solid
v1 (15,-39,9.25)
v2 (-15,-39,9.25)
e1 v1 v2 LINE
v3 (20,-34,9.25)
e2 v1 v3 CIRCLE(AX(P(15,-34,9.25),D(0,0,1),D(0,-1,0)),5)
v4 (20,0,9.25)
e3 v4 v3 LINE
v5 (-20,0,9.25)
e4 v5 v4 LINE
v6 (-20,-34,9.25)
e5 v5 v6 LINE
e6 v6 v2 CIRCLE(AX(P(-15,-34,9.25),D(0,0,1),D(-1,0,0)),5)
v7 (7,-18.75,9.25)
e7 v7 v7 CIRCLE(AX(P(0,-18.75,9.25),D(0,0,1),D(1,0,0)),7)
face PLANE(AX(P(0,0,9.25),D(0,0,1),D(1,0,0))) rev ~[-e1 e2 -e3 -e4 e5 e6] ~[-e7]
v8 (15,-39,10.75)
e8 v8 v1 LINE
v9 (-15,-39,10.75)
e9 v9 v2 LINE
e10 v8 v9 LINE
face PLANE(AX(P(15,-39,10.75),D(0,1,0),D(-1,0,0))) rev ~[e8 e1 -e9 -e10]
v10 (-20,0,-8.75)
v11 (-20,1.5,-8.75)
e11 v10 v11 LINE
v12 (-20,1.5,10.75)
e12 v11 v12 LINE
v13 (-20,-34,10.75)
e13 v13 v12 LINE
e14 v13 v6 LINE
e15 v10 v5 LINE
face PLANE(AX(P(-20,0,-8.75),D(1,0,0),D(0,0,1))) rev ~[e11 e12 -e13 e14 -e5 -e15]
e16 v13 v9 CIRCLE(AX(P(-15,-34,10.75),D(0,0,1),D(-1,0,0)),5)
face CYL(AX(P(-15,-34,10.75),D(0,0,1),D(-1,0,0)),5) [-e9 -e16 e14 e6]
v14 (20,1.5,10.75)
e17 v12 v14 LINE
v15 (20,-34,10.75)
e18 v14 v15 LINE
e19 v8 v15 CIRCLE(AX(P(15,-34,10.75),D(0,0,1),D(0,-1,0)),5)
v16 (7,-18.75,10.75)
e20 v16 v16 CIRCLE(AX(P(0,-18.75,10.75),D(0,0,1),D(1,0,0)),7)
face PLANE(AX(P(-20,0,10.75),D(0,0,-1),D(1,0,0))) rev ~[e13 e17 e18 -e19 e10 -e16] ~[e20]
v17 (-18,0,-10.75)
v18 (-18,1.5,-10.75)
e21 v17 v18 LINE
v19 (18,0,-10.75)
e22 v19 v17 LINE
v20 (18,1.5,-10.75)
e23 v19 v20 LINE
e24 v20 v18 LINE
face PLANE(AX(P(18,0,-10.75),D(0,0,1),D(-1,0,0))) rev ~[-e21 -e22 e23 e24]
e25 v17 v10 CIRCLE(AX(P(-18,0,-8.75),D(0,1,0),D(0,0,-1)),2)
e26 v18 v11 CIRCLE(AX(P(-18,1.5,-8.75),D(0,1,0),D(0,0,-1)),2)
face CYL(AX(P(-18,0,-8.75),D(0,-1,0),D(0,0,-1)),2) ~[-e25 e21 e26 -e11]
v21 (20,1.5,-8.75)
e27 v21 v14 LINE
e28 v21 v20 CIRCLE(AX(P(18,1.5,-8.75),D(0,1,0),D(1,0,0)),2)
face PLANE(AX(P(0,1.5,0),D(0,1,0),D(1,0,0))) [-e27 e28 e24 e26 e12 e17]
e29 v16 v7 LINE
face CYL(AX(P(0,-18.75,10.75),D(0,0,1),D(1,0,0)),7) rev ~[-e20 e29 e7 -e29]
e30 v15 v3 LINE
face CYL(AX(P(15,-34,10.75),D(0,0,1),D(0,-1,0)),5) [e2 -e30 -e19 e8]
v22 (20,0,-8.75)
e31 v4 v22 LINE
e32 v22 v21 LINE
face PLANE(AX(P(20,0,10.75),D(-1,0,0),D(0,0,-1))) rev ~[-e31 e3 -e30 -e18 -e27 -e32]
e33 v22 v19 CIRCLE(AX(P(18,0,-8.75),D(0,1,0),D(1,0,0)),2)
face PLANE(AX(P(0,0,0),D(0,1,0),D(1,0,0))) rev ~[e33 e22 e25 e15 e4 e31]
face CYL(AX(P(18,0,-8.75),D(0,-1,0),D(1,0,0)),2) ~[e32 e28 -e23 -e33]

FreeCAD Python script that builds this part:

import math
import FreeCAD as App
import Part
import Sketcher
Q = App.Units.Quantity

doc = App.newDocument("Part")
body = doc.addObject("PartDesign::Body", "Body")

sketch1 = body.newObject("Sketcher::SketchObject", "Sketch")
sketch1.AttachmentSupport = (doc.getObject("XZ_Plane"), [""])
sketch1.MapMode = "FlatFace"
sketch1.addGeometry([
    Part.ArcOfCircle(Part.Circle(App.Vector(18, -8.75, 0), App.Vector(0, 0, 1), 2), math.radians(-90), math.radians(0)),
    Part.LineSegment(App.Vector(18, -10.75, 0), App.Vector(-18, -10.75, 0)),
    Part.ArcOfCircle(Part.Circle(App.Vector(-18, -8.75, 0), App.Vector(0, 0, 1), 2), math.radians(180), math.radians(270)),
    Part.LineSegment(App.Vector(-20, -8.75, 0), App.Vector(-20, 10.75, 0)),
    Part.LineSegment(App.Vector(-20, 10.75, 0), App.Vector(20, 10.75, 0)),
    Part.LineSegment(App.Vector(20, 10.75, 0), App.Vector(20, -8.75, 0)),
], False)
sketch1.addConstraint([
    Sketcher.Constraint("Tangent", 0, 1, 1, 1),
    Sketcher.Constraint("Tangent", 1, 2, 2, 2),
    Sketcher.Constraint("Tangent", 2, 1, 3, 1),
    Sketcher.Constraint("Coincident", 3, 2, 4, 1),
    Sketcher.Constraint("Coincident", 4, 2, 5, 1),
    Sketcher.Constraint("Tangent", 5, 2, 0, 2),
    Sketcher.Constraint("Horizontal", 1),
    Sketcher.Constraint("Vertical", 3),
    Sketcher.Constraint("Horizontal", 4),
    Sketcher.Constraint("Vertical", 5),
    Sketcher.Constraint("Equal", 0, 2),
    Sketcher.Constraint("Radius", 0, Q("2 mm")),
    Sketcher.Constraint("DistanceX", 4, 1, 4, 2, Q("40 mm")),
    Sketcher.Constraint("DistanceY", 1, 2, 3, 2, Q("21.5 mm")),
    Sketcher.Constraint("DistanceX", -1, 1, 0, 3, Q("18 mm")),
    Sketcher.Constraint("DistanceY", 0, 3, -1, 1, Q("8.75 mm")),
])
pad1 = body.newObject("PartDesign::Pad", "Pad")
pad1.Profile = sketch1
pad1.Length = 1.5
pad1.Reversed = True

sketch2 = body.newObject("Sketcher::SketchObject", "Sketch001")
sketch2.AttachmentSupport = (doc.getObject("XY_Plane"), [""])
sketch2.MapMode = "FlatFace"
sketch2.AttachmentOffset = App.Placement(App.Vector(0, 0, 10.75), App.Rotation())
sketch2.addGeometry([
    Part.LineSegment(App.Vector(-20, 1.5, 0), App.Vector(-20, -34, 0)),
    Part.ArcOfCircle(Part.Circle(App.Vector(-15, -34, 0), App.Vector(0, 0, 1), 5), math.radians(180), math.radians(270)),
    Part.LineSegment(App.Vector(-15, -39, 0), App.Vector(15, -39, 0)),
    Part.ArcOfCircle(Part.Circle(App.Vector(15, -34, 0), App.Vector(0, 0, 1), 5), math.radians(-90), math.radians(0)),
    Part.LineSegment(App.Vector(20, -34, 0), App.Vector(20, 1.5, 0)),
    Part.LineSegment(App.Vector(20, 1.5, 0), App.Vector(-20, 1.5, 0)),
    Part.Circle(App.Vector(0, -18.75, 0), App.Vector(0, 0, 1), 7),
], False)
sketch2.addConstraint([
    Sketcher.Constraint("Tangent", 0, 2, 1, 1),
    Sketcher.Constraint("Tangent", 1, 2, 2, 1),
    Sketcher.Constraint("Tangent", 2, 2, 3, 1),
    Sketcher.Constraint("Tangent", 3, 2, 4, 1),
    Sketcher.Constraint("Coincident", 4, 2, 5, 1),
    Sketcher.Constraint("Coincident", 5, 2, 0, 1),
    Sketcher.Constraint("Vertical", 0),
    Sketcher.Constraint("Horizontal", 2),
    Sketcher.Constraint("Vertical", 4),
    Sketcher.Constraint("Horizontal", 5),
    Sketcher.Constraint("Equal", 1, 3),
    Sketcher.Constraint("PointOnObject", 6, 3, -2),
    Sketcher.Constraint("Diameter", 6, Q("14 mm")),
    Sketcher.Constraint("Radius", 1, Q("5 mm")),
    Sketcher.Constraint("DistanceY", 2, 2, 4, 2, Q("40.5 mm")),
    Sketcher.Constraint("DistanceX", 2, 1, 2, 2, Q("30 mm")),
    Sketcher.Constraint("DistanceX", 1, 3, -1, 1, Q("15 mm")),
    Sketcher.Constraint("DistanceY", 1, 3, -1, 1, Q("34 mm")),
    Sketcher.Constraint("DistanceY", 6, 3, -1, 1, Q("18.75 mm")),
])
pad2 = body.newObject("PartDesign::Pad", "Pad001")
pad2.Profile = sketch2
pad2.Length = 1.5
pad2.Reversed = True

doc.recompute()
